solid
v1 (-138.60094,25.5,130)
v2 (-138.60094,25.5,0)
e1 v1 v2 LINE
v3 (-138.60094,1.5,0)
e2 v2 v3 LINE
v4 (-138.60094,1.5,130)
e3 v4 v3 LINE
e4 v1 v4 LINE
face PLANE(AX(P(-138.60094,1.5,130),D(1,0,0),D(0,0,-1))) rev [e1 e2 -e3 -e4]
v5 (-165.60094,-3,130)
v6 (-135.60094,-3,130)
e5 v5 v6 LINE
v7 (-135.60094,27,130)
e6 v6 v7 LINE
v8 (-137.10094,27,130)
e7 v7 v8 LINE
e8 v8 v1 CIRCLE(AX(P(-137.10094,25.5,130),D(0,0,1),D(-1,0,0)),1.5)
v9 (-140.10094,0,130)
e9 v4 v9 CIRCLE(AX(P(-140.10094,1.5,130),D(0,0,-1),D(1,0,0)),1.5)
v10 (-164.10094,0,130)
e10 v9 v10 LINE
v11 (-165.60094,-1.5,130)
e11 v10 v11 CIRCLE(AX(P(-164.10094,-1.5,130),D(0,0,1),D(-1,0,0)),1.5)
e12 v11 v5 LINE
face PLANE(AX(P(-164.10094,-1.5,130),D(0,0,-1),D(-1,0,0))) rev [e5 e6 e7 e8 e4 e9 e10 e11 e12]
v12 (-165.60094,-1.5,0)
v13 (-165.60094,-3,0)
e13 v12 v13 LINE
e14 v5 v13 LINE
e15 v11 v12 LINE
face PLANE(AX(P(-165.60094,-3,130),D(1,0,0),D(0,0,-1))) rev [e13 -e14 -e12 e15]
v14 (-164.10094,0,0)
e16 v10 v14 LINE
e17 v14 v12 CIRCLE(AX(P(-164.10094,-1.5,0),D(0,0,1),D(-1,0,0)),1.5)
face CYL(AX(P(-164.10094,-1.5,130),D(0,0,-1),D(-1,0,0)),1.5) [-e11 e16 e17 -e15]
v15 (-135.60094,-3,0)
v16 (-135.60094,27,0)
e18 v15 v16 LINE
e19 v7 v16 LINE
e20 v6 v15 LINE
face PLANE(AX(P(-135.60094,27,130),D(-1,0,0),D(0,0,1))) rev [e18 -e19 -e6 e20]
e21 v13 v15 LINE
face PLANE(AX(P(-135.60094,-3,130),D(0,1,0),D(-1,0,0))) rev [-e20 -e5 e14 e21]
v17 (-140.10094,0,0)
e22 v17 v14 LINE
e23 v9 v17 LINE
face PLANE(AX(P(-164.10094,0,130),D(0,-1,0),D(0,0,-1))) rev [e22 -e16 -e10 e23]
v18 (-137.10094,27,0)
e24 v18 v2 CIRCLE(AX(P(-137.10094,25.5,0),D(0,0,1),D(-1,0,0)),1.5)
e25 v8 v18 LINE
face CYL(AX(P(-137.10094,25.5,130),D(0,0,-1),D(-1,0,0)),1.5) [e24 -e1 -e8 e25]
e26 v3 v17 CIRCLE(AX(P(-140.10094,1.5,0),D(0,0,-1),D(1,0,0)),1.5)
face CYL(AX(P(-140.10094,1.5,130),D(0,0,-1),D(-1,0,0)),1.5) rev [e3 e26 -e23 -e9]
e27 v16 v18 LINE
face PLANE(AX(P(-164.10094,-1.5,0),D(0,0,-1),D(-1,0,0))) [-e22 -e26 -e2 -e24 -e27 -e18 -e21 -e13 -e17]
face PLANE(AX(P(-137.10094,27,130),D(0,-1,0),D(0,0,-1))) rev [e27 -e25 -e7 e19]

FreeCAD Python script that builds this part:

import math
import FreeCAD as App
import Part
import Sketcher

doc = App.newDocument("Part")
body = doc.addObject("PartDesign::Body", "Body")

# Sketch on XY plane
sketch1 = body.newObject("Sketcher::SketchObject", "Sketch")
sketch1.AttachmentSupport = (doc.getObject("XY_Plane"), [""])
sketch1.MapMode = "FlatFace"
sketch1.addGeometry([
    Part.LineSegment(App.Vector(-135.6, -3, 0), App.Vector(-135.6, 27, 0)),  # 0
    Part.LineSegment(App.Vector(-135.6, 27, 0), App.Vector(-137.1, 27, 0)),  # 1
    Part.ArcOfCircle(Part.Circle(App.Vector(-137.1, 25.5, 0), App.Vector(0, 0, 1), 1.5), math.radians(90), math.radians(180)),  # 2
    Part.LineSegment(App.Vector(-138.6, 25.5, 0), App.Vector(-138.6, 1.5, 0)),  # 3
    Part.ArcOfCircle(Part.Circle(App.Vector(-140.1, 1.5, 0), App.Vector(0, 0, 1), 1.5), math.radians(-90), math.radians(0)),  # 4
    Part.LineSegment(App.Vector(-140.1, 0, 0), App.Vector(-164.1, 0, 0)),  # 5
    Part.ArcOfCircle(Part.Circle(App.Vector(-164.1, -1.5, 0), App.Vector(0, 0, 1), 1.5), math.radians(90), math.radians(180)),  # 6
    Part.LineSegment(App.Vector(-165.6, -1.5, 0), App.Vector(-165.6, -3, 0)),  # 7
    Part.LineSegment(App.Vector(-165.6, -3, 0), App.Vector(-135.6, -3, 0)),  # 8
], False)
sketch1.addConstraint([
    Sketcher.Constraint("Coincident", 0, 2, 1, 1),
    Sketcher.Constraint("Tangent", 1, 2, 2, 1),
    Sketcher.Constraint("Tangent", 2, 2, 3, 1),
    Sketcher.Constraint("Tangent", 3, 2, 4, 2),
    Sketcher.Constraint("Tangent", 4, 1, 5, 1),
    Sketcher.Constraint("Tangent", 5, 2, 6, 1),
    Sketcher.Constraint("Tangent", 6, 2, 7, 1),
    Sketcher.Constraint("Coincident", 7, 2, 8, 1),
    Sketcher.Constraint("Coincident", 8, 2, 0, 1),
    Sketcher.Constraint("Vertical", 0),
    Sketcher.Constraint("Horizontal", 1),
    Sketcher.Constraint("Vertical", 3),
    Sketcher.Constraint("Horizontal", 5),
    Sketcher.Constraint("Vertical", 7),
    Sketcher.Constraint("Horizontal", 8),
    Sketcher.Constraint("Equal", 2, 4),
    Sketcher.Constraint("Equal", 4, 6),
    Sketcher.Constraint("PointOnObject", 4, 1, -1),
    Sketcher.Constraint("Equal", 8, 0),
    Sketcher.Constraint("Equal", 5, 3),
    Sketcher.Constraint("Radius", 2, 1.5),
    Sketcher.Constraint("DistanceX", 5, 2, 5, 1, 24.0),
    Sketcher.Constraint("DistanceX", 8, 1, 8, 2, 30.0),
    Sketcher.Constraint("DistanceX", 2, 3, -1, 1, 137.10094),
])
pad1 = body.newObject("PartDesign::Pad", "Pad")
pad1.Profile = sketch1
pad1.Length = 130

doc.recompute()
